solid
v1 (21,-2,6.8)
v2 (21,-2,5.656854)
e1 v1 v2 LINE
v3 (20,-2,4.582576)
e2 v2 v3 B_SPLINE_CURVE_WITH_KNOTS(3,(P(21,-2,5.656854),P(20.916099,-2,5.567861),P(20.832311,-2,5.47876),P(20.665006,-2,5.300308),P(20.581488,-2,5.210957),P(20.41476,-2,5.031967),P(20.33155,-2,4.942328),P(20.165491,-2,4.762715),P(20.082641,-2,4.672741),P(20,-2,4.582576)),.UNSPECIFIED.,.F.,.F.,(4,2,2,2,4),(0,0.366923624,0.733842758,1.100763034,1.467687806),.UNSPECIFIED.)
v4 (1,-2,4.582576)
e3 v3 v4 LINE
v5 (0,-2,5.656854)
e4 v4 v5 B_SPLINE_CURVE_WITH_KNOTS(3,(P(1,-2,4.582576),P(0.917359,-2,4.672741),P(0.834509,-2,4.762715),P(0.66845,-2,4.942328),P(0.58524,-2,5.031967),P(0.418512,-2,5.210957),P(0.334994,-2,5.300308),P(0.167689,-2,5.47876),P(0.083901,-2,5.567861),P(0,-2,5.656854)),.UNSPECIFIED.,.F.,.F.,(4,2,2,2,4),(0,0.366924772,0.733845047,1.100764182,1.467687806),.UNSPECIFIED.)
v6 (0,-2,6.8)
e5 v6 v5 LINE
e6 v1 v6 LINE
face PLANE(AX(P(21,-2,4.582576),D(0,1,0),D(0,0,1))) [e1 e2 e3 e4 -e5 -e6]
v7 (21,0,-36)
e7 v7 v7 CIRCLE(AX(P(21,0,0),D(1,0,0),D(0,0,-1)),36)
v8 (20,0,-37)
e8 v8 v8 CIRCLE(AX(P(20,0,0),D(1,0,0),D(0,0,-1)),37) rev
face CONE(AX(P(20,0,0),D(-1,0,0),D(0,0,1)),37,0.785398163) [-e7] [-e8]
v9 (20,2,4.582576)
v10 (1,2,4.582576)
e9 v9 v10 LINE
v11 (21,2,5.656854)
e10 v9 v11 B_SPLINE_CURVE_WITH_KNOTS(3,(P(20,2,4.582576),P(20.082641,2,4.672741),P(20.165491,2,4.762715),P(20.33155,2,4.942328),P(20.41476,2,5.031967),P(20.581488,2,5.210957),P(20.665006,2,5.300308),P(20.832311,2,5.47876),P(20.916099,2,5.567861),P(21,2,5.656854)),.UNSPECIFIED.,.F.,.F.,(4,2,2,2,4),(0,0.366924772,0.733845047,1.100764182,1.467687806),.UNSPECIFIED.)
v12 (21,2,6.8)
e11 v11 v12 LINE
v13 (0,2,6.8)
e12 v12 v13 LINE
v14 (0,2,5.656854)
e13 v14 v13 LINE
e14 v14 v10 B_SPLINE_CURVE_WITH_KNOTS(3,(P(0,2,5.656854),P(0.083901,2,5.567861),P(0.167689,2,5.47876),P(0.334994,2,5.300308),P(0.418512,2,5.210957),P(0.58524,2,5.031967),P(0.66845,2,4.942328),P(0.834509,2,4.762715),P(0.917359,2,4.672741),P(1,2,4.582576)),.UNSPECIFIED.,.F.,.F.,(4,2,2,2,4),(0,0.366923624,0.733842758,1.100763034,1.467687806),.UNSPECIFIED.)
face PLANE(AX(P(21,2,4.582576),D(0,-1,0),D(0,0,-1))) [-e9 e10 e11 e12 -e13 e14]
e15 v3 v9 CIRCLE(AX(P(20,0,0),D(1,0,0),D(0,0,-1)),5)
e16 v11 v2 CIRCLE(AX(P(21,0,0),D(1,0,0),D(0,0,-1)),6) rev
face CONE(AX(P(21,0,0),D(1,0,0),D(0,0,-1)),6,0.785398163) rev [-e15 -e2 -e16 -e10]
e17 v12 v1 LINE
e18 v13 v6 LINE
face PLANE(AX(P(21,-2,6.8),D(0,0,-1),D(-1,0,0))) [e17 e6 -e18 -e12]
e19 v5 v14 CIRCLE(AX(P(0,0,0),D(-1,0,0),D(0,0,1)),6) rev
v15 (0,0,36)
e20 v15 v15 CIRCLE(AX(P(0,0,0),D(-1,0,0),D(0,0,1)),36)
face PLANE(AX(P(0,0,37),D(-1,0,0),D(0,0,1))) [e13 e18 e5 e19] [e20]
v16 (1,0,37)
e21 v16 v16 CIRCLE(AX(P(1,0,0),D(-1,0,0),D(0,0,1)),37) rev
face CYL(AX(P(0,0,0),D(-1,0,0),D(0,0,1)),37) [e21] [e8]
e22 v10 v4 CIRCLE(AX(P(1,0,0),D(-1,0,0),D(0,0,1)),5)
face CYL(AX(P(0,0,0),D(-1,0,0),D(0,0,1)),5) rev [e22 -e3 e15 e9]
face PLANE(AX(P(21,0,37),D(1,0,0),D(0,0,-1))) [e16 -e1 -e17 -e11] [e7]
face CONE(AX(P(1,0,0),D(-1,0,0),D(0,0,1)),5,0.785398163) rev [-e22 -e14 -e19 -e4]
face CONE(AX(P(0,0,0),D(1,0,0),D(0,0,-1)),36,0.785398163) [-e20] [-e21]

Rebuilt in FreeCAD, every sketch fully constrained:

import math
import FreeCAD as App
import Part
import Sketcher

V = App.Vector
Q = App.Units.Quantity


def edges_at(feature, points):
    """Names of the edges that pass closest to the given points."""
    edges = feature.Shape.Edges
    near = lambda p: min(range(len(edges)), key=lambda i: edges[i].distToShape(Part.Vertex(*p))[0])
    return sorted({f"Edge{near(p) + 1}" for p in points})


def add_polygon(sketch, points):
    """Adds a closed chain of lines whose ends are joined by coincident constraints."""
    first, n = sketch.GeometryCount, len(points)
    for a, b in zip(points, points[1:] + points[:1]):
        sketch.addGeometry(Part.LineSegment(App.Vector(*a, 0), App.Vector(*b, 0)), False)
    for i in range(n):
        sketch.addConstraint(Sketcher.Constraint("Coincident", first + i, 2, first + (i + 1) % n, 1))

doc = App.newDocument("Part")
body = doc.addObject("PartDesign::Body", "Body")

# Sketch on XZ plane
sketch1 = body.newObject("Sketcher::SketchObject", "Sketch")
sketch1.AttachmentSupport = (doc.getObject("XZ_Plane"), [""])
sketch1.MapMode = "FlatFace"
add_polygon(sketch1, [(0, 5), (0, 37), (21, 37), (21, 5)])  # lines 0-3
sketch1.addConstraint([
    Sketcher.Constraint("Vertical", 0),
    Sketcher.Constraint("Horizontal", 1),
    Sketcher.Constraint("Vertical", 2),
    Sketcher.Constraint("Horizontal", 3),
    Sketcher.Constraint("PointOnObject", 0, 2, -2),
    Sketcher.Constraint("DistanceX", 1, 1, 1, 2, Q("21 mm")),
    Sketcher.Constraint("DistanceY", 0, 1, 0, 2, Q("32 mm")),
    Sketcher.Constraint("DistanceY", -1, 1, 0, 2, Q("37 mm")),
])
revolution = body.newObject("PartDesign::Revolution", "Revolution")
revolution.Profile = sketch1
revolution.ReferenceAxis = (sketch1, ["H_Axis"])
revolution.Angle = 360

# Sketch on YZ plane
sketch2 = body.newObject("Sketcher::SketchObject", "Sketch001")
sketch2.AttachmentSupport = (doc.getObject("YZ_Plane"), [""])
sketch2.MapMode = "FlatFace"
sketch2.addGeometry([
    Part.LineSegment(V(-2, 6.8, 0), V(-2, 4.582576, 0)),
    Part.ArcOfCircle(Part.Circle(V(0, 0, 0), V(0, 0, 1), 5), math.radians(66.421822), math.radians(113.578178)),
    Part.LineSegment(V(2, 4.582576, 0), V(2, 6.8, 0)),
    Part.LineSegment(V(2, 6.8, 0), V(-2, 6.8, 0)),
], False)
sketch2.addConstraint([
    Sketcher.Constraint("Coincident", 0, 2, 1, 2),
    Sketcher.Constraint("Coincident", 1, 1, 2, 1),
    Sketcher.Constraint("Coincident", 2, 2, 3, 1),
    Sketcher.Constraint("Coincident", 3, 2, 0, 1),
    Sketcher.Constraint("Vertical", 0),
    Sketcher.Constraint("Vertical", 2),
    Sketcher.Constraint("Horizontal", 3),
    Sketcher.Constraint("Coincident", 1, 3, -1, 1),
    Sketcher.Constraint("Horizontal", 0, 2, 1, 1),
    Sketcher.Constraint("Radius", 1, Q("5 mm")),
    Sketcher.Constraint("DistanceX", 3, 2, 3, 1, Q("4 mm")),
    Sketcher.Constraint("DistanceY", -1, 1, 2, 2, Q("6.8 mm")),
])
pocket1 = body.newObject("PartDesign::Pocket", "Pocket")
pocket1.Profile = sketch2
pocket1.Type = "ThroughAll"
pocket1.Reversed = True
doc.recompute()

chamfer = body.newObject("PartDesign::Chamfer", "Chamfer")
chamfer.Base = (pocket1, edges_at(pocket1, [
    (0, 0, -37),
    (21, 0, -37),
    (21, 0, -5),
    (0, 0, -5),
]))
chamfer.Size = 1

doc.recompute()
